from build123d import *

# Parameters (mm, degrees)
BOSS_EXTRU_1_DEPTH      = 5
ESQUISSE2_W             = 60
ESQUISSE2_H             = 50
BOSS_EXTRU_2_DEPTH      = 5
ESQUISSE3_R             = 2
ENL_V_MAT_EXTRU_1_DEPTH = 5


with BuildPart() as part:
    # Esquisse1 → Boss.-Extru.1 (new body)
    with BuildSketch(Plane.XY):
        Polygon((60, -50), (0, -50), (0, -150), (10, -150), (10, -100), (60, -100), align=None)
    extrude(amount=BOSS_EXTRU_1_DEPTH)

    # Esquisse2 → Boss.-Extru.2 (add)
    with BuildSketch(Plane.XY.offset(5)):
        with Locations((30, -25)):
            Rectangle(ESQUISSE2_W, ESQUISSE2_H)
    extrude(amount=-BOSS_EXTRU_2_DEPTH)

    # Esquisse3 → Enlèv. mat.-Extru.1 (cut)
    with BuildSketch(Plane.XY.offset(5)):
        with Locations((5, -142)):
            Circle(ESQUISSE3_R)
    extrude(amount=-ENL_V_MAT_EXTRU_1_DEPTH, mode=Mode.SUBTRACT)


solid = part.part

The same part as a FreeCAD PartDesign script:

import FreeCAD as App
import Part
import Sketcher
Q = App.Units.Quantity


def add_polygon(sketch, points):
    """Adds a closed chain of lines whose ends are joined by coincident constraints."""
    first, n = sketch.GeometryCount, len(points)
    for a, b in zip(points, points[1:] + points[:1]):
        sketch.addGeometry(Part.LineSegment(App.Vector(*a, 0), App.Vector(*b, 0)), False)
    for i in range(n):
        sketch.addConstraint(Sketcher.Constraint("Coincident", first + i, 2, first + (i + 1) % n, 1))

doc = App.newDocument("Part")
body = doc.addObject("PartDesign::Body", "Body")

sketch1 = body.newObject("Sketcher::SketchObject", "Sketch")
sketch1.AttachmentSupport = (doc.getObject("XY_Plane"), [""])
sketch1.MapMode = "FlatFace"
add_polygon(sketch1, [(60, -50), (0, -50), (0, -150), (10, -150), (10, -100), (60, -100)])
sketch1.addConstraint([
    Sketcher.Constraint("Horizontal", 0),
    Sketcher.Constraint("Vertical", 1),
    Sketcher.Constraint("Horizontal", 2),
    Sketcher.Constraint("Vertical", 3),
    Sketcher.Constraint("Horizontal", 4),
    Sketcher.Constraint("Vertical", 5),
    Sketcher.Constraint("PointOnObject", 0, 2, -2),
    Sketcher.Constraint("Equal", 4, 3),
    Sketcher.Constraint("Equal", 3, 5),
    Sketcher.Constraint("DistanceX", 0, 2, 0, 1, Q("60 mm")),
    Sketcher.Constraint("DistanceX", 2, 1, 2, 2, Q("10 mm")),
    Sketcher.Constraint("DistanceY", 0, 2, -1, 1, Q("50 mm")),
])
pad1 = body.newObject("PartDesign::Pad", "Pad")
pad1.Profile = sketch1
pad1.Length = 5

sketch2 = body.newObject("Sketcher::SketchObject", "Sketch001")
sketch2.AttachmentSupport = (doc.getObject("XY_Plane"), [""])
sketch2.MapMode = "FlatFace"
sketch2.AttachmentOffset = App.Placement(App.Vector(0, 0, 5), App.Rotation())
add_polygon(sketch2, [(0, 0), (0, -50), (60, -50), (60, 0)])
sketch2.addConstraint([
    Sketcher.Constraint("Vertical", 0),
    Sketcher.Constraint("Horizontal", 1),
    Sketcher.Constraint("Vertical", 2),
    Sketcher.Constraint("Horizontal", 3),
    Sketcher.Constraint("Coincident", 3, 2, -1, 1),
    Sketcher.Constraint("DistanceX", 1, 1, 1, 2, Q("60 mm")),
    Sketcher.Constraint("DistanceY", 0, 2, 0, 1, Q("50 mm")),
])
pad2 = body.newObject("PartDesign::Pad", "Pad001")
pad2.Profile = sketch2
pad2.Length = 5
pad2.Reversed = True

sketch3 = body.newObject("Sketcher::SketchObject", "Sketch002")
sketch3.AttachmentSupport = (doc.getObject("XY_Plane"), [""])
sketch3.MapMode = "FlatFace"
sketch3.AttachmentOffset = App.Placement(App.Vector(0, 0, 5), App.Rotation())
sketch3.addGeometry(Part.Circle(App.Vector(5, -142, 0), App.Vector(0, 0, 1), 2), False)
sketch3.addConstraint([
    Sketcher.Constraint("Diameter", 0, Q("4 mm")),
    Sketcher.Constraint("DistanceX", -1, 1, 0, 3, Q("5 mm")),
    Sketcher.Constraint("DistanceY", 0, 3, -1, 1, Q("142 mm")),
])
pocket1 = body.newObject("PartDesign::Pocket", "Pocket")
pocket1.Profile = sketch3
pocket1.Length = 5

doc.recompute()
